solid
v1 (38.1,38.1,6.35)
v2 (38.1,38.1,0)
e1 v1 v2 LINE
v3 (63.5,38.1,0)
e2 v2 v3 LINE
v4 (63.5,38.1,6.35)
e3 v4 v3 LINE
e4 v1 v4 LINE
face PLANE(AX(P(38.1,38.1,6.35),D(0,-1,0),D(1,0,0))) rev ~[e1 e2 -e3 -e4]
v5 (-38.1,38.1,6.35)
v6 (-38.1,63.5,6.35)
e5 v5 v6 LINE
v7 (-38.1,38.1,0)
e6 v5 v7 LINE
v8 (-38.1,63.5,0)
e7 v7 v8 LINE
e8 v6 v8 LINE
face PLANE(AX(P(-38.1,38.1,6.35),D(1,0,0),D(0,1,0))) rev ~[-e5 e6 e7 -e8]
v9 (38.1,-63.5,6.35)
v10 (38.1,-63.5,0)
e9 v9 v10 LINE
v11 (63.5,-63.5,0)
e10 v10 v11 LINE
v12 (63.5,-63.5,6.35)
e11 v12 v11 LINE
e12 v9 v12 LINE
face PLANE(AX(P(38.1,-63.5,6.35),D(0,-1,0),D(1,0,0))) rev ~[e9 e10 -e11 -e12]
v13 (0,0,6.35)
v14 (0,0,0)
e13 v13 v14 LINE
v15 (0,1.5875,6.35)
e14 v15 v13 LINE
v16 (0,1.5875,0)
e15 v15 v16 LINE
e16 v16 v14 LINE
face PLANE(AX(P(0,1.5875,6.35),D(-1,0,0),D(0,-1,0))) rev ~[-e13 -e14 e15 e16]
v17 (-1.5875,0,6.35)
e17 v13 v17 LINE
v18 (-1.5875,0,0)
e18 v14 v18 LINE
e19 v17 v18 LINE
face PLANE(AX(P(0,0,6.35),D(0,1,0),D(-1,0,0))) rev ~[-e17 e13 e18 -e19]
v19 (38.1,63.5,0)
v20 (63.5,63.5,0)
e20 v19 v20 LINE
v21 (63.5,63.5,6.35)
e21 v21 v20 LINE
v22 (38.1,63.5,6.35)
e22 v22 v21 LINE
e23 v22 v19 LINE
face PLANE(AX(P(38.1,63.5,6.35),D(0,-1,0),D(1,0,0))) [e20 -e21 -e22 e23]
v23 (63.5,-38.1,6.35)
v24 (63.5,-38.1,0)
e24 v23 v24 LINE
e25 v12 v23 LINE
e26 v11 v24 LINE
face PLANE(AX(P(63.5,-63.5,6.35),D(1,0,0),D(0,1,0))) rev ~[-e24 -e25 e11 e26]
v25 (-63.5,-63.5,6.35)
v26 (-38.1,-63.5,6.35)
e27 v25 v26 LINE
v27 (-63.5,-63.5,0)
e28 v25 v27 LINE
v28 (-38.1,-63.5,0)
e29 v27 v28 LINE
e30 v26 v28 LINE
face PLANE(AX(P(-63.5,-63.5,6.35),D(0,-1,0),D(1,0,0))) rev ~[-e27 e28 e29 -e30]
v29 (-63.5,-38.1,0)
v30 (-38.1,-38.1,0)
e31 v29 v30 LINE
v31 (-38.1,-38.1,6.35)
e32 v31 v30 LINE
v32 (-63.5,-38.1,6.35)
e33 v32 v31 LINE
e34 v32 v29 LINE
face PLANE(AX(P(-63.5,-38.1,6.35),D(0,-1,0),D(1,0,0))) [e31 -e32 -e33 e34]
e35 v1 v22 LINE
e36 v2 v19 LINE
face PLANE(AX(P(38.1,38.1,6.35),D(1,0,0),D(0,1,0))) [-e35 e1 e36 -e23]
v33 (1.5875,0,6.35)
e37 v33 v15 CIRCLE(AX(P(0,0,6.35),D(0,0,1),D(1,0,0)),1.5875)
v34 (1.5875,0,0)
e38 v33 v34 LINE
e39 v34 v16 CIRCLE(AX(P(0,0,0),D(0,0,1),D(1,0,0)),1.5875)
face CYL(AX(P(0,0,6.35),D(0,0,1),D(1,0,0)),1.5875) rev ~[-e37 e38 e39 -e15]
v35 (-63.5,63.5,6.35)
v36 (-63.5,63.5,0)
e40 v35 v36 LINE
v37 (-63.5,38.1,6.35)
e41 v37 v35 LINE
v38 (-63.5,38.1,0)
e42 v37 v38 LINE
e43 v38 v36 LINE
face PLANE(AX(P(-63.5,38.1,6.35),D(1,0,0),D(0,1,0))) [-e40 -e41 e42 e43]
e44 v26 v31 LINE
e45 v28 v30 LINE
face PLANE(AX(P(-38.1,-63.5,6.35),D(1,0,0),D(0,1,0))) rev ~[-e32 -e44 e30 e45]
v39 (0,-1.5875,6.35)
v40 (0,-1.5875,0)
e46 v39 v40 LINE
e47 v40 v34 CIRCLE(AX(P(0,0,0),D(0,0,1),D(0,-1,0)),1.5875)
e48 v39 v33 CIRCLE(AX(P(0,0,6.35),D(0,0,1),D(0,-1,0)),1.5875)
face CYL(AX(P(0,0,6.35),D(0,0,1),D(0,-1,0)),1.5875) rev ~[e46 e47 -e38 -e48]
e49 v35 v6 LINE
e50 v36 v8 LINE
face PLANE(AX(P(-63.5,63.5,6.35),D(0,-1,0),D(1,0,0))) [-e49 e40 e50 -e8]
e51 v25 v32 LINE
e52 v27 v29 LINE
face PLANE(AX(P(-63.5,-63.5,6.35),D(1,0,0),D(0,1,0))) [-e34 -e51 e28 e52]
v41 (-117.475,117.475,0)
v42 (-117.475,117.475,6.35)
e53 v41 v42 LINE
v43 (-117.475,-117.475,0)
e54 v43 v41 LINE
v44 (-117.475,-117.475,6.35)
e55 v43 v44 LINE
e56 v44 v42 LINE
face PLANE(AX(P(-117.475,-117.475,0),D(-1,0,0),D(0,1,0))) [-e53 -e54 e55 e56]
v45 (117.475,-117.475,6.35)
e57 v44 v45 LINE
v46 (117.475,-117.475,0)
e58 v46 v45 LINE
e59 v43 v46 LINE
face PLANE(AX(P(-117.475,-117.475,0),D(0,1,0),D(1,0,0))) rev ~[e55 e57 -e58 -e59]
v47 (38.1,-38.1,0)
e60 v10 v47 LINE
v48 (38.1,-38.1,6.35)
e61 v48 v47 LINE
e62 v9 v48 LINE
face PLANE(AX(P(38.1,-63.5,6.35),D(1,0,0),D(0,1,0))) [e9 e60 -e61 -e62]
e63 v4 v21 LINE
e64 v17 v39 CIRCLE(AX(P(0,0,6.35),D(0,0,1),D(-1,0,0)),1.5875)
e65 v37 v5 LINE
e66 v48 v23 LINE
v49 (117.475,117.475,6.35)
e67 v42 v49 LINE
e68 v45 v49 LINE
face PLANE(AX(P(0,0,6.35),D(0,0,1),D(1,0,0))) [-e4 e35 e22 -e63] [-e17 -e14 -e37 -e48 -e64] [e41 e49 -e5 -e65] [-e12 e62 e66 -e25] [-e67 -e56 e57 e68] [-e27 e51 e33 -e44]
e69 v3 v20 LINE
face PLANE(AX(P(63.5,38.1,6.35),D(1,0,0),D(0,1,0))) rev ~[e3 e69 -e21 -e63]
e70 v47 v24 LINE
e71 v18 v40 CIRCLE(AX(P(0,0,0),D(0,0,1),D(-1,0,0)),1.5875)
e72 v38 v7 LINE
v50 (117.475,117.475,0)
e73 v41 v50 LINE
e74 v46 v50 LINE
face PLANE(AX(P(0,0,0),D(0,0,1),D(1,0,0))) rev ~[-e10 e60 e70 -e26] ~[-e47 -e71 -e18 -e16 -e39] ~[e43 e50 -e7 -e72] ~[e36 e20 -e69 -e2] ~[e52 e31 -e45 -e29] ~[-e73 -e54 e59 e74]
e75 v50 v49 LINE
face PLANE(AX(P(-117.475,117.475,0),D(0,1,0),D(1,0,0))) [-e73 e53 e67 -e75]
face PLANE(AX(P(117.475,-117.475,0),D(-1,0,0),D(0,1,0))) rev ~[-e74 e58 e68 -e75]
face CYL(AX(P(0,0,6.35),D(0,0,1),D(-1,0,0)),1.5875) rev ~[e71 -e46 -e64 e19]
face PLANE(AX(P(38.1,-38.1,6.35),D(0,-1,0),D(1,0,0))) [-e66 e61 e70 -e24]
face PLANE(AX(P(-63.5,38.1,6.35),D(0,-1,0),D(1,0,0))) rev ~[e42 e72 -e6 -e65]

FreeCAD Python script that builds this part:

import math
import FreeCAD as App
import Part
import Sketcher

V = App.Vector
Q = App.Units.Quantity

doc = App.newDocument("Part")
params = doc.addObject("Spreadsheet::Sheet", "Params")
for row, (alias, value) in enumerate([
    ("sketch1_width", "9.25 in"),
    ("pad1_length", "0.25 in"),
    ("sketch2_width", "1 in"),
    ("sketch2_radius", "0.0625 in"),
    ("pocket1_length", "1 in"),
], start=1):
    params.set(f"A{row}", alias)
    params.set(f"B{row}", "=" + value)
    params.setAlias(f"B{row}", alias)

body = doc.addObject("PartDesign::Body", "Body")

# Sketch on XY plane
sketch1 = body.newObject("Sketcher::SketchObject", "Sketch")
sketch1.AttachmentSupport = (doc.getObject("XY_Plane"), [""])
sketch1.MapMode = "FlatFace"
sketch1.addGeometry(Part.LineSegment(V(-117, 117, 0), V(-117, -117, 0)), False)
sketch1.addGeometry(Part.LineSegment(V(-117, -117, 0), V(117, -117, 0)), False)
sketch1.addGeometry(Part.LineSegment(V(117, -117, 0), V(117, 117, 0)), False)
sketch1.addGeometry(Part.LineSegment(V(117, 117, 0), V(-117, 117, 0)), False)
sketch1.addConstraint(Sketcher.Constraint("Coincident", 0, 2, 1, 1))
sketch1.addConstraint(Sketcher.Constraint("Coincident", 1, 2, 2, 1))
sketch1.addConstraint(Sketcher.Constraint("Coincident", 2, 2, 3, 1))
sketch1.addConstraint(Sketcher.Constraint("Coincident", 3, 2, 0, 1))
sketch1.addConstraint(Sketcher.Constraint("Vertical", 0))
sketch1.addConstraint(Sketcher.Constraint("Horizontal", 1))
sketch1.addConstraint(Sketcher.Constraint("Vertical", 2))
sketch1.addConstraint(Sketcher.Constraint("Horizontal", 3))
sketch1.addConstraint(Sketcher.Constraint("Symmetric", 0, 2, 2, 2, -1, 1))
sketch1.addConstraint(Sketcher.Constraint("Equal", 3, 0))
sketch1.addConstraint(Sketcher.Constraint("DistanceX", 1, 1, 1, 2, Q("9.25 in")))
sketch1.setExpression("Constraints[10]", "Params.sketch1_width")
pad1 = body.newObject("PartDesign::Pad", "Pad")
pad1.Profile = sketch1
pad1.setExpression("Length", "Params.pad1_length")

# Sketch on XY plane
sketch2 = body.newObject("Sketcher::SketchObject", "Sketch001")
sketch2.AttachmentSupport = (doc.getObject("XY_Plane"), [""])
sketch2.MapMode = "FlatFace"
sketch2.AttachmentOffset = App.Placement(V(0, 0, 0.25 * 25.4), App.Rotation())
sketch2.addGeometry(Part.LineSegment(V(-63.5, 63.5, 0), V(-63.5, 38.1, 0)), False)
sketch2.addGeometry(Part.LineSegment(V(-63.5, 38.1, 0), V(-38.1, 38.1, 0)), False)
sketch2.addGeometry(Part.LineSegment(V(-38.1, 38.1, 0), V(-38.1, 63.5, 0)), False)
sketch2.addGeometry(Part.LineSegment(V(-38.1, 63.5, 0), V(-63.5, 63.5, 0)), False)
sketch2.addGeometry(Part.LineSegment(V(38.1, 63.5, 0), V(38.1, 38.1, 0)), False)
sketch2.addGeometry(Part.LineSegment(V(38.1, 38.1, 0), V(63.5, 38.1, 0)), False)
sketch2.addGeometry(Part.LineSegment(V(63.5, 38.1, 0), V(63.5, 63.5, 0)), False)
sketch2.addGeometry(Part.LineSegment(V(63.5, 63.5, 0), V(38.1, 63.5, 0)), False)
sketch2.addGeometry(Part.LineSegment(V(38.1, -38.1, 0), V(38.1, -63.5, 0)), False)
sketch2.addGeometry(Part.LineSegment(V(38.1, -63.5, 0), V(63.5, -63.5, 0)), False)
sketch2.addGeometry(Part.LineSegment(V(63.5, -63.5, 0), V(63.5, -38.1, 0)), False)
sketch2.addGeometry(Part.LineSegment(V(63.5, -38.1, 0), V(38.1, -38.1, 0)), False)
sketch2.addGeometry(Part.LineSegment(V(-63.5, -38.1, 0), V(-63.5, -63.5, 0)), False)
sketch2.addGeometry(Part.LineSegment(V(-63.5, -63.5, 0), V(-38.1, -63.5, 0)), False)
sketch2.addGeometry(Part.LineSegment(V(-38.1, -63.5, 0), V(-38.1, -38.1, 0)), False)
sketch2.addGeometry(Part.LineSegment(V(-38.1, -38.1, 0), V(-63.5, -38.1, 0)), False)
sketch2.addGeometry(Part.ArcOfCircle(Part.Circle(V(0, 0, 0), V(0, 0, 1), 1.6), math.radians(0), math.radians(90)), False)
sketch2.addGeometry(Part.LineSegment(V(0, 1.6, 0), V(0, 0, 0)), False)
sketch2.addGeometry(Part.LineSegment(V(0, 0, 0), V(-1.6, 0, 0)), False)
sketch2.addGeometry(Part.ArcOfCircle(Part.Circle(V(0, 0, 0), V(0, 0, 1), 1.6), math.radians(180), math.radians(270)), False)
sketch2.addGeometry(Part.ArcOfCircle(Part.Circle(V(0, 0, 0), V(0, 0, 1), 1.6), math.radians(-90), math.radians(0)), False)
sketch2.addConstraint(Sketcher.Constraint("Coincident", 0, 2, 1, 1))
sketch2.addConstraint(Sketcher.Constraint("Coincident", 1, 2, 2, 1))
sketch2.addConstraint(Sketcher.Constraint("Coincident", 2, 2, 3, 1))
sketch2.addConstraint(Sketcher.Constraint("Coincident", 3, 2, 0, 1))
sketch2.addConstraint(Sketcher.Constraint("Coincident", 4, 2, 5, 1))
sketch2.addConstraint(Sketcher.Constraint("Coincident", 5, 2, 6, 1))
sketch2.addConstraint(Sketcher.Constraint("Coincident", 6, 2, 7, 1))
sketch2.addConstraint(Sketcher.Constraint("Coincident", 7, 2, 4, 1))
sketch2.addConstraint(Sketcher.Constraint("Coincident", 8, 2, 9, 1))
sketch2.addConstraint(Sketcher.Constraint("Coincident", 9, 2, 10, 1))
sketch2.addConstraint(Sketcher.Constraint("Coincident", 10, 2, 11, 1))
sketch2.addConstraint(Sketcher.Constraint("Coincident", 11, 2, 8, 1))
sketch2.addConstraint(Sketcher.Constraint("Coincident", 12, 2, 13, 1))
sketch2.addConstraint(Sketcher.Constraint("Coincident", 13, 2, 14, 1))
sketch2.addConstraint(Sketcher.Constraint("Coincident", 14, 2, 15, 1))
sketch2.addConstraint(Sketcher.Constraint("Coincident", 15, 2, 12, 1))
sketch2.addConstraint(Sketcher.Constraint("Coincident", 16, 2, 17, 1))
sketch2.addConstraint(Sketcher.Constraint("Coincident", 17, 2, 18, 1))
sketch2.addConstraint(Sketcher.Constraint("Coincident", 18, 2, 19, 1))
sketch2.addConstraint(Sketcher.Constraint("Tangent", 19, 2, 20, 1))
sketch2.addConstraint(Sketcher.Constraint("Tangent", 20, 2, 16, 1))
sketch2.addConstraint(Sketcher.Constraint("Vertical", 0))
sketch2.addConstraint(Sketcher.Constraint("Horizontal", 1))
sketch2.addConstraint(Sketcher.Constraint("Vertical", 2))
sketch2.addConstraint(Sketcher.Constraint("Horizontal", 3))
sketch2.addConstraint(Sketcher.Constraint("Vertical", 4))
sketch2.addConstraint(Sketcher.Constraint("Horizontal", 5))
sketch2.addConstraint(Sketcher.Constraint("Vertical", 6))
sketch2.addConstraint(Sketcher.Constraint("Horizontal", 7))
sketch2.addConstraint(Sketcher.Constraint("Vertical", 8))
sketch2.addConstraint(Sketcher.Constraint("Horizontal", 9))
sketch2.addConstraint(Sketcher.Constraint("Vertical", 10))
sketch2.addConstraint(Sketcher.Constraint("Horizontal", 11))
sketch2.addConstraint(Sketcher.Constraint("Vertical", 12))
sketch2.addConstraint(Sketcher.Constraint("Horizontal", 13))
sketch2.addConstraint(Sketcher.Constraint("Vertical", 14))
sketch2.addConstraint(Sketcher.Constraint("Horizontal", 15))
sketch2.addConstraint(Sketcher.Constraint("Vertical", 17))
sketch2.addConstraint(Sketcher.Constraint("Horizontal", 18))
sketch2.addConstraint(Sketcher.Constraint("Coincident", 16, 3, -1, 1))
sketch2.addConstraint(Sketcher.Constraint("Coincident", 19, 3, -1, 1))
sketch2.addConstraint(Sketcher.Constraint("Coincident", 17, 2, -1, 1))
sketch2.addConstraint(Sketcher.Constraint("Symmetric", 2, 2, 8, 2, -1, 1))
sketch2.addConstraint(Sketcher.Constraint("Symmetric", 0, 2, 10, 2, -1, 1))
sketch2.addConstraint(Sketcher.Constraint("Symmetric", 6, 2, 12, 2, -1, 1))
sketch2.addConstraint(Sketcher.Constraint("Symmetric", 4, 2, 14, 2, -1, 1))
sketch2.addConstraint(Sketcher.Constraint("Symmetric", 1, 2, 4, 2, -2))
sketch2.addConstraint(Sketcher.Constraint("Symmetric", 3, 2, 6, 2, -2))
sketch2.addConstraint(Sketcher.Constraint("PointOnObject", 19, 2, -2))
sketch2.addConstraint(Sketcher.Constraint("PointOnObject", 20, 2, -1))
sketch2.addConstraint(Sketcher.Constraint("Equal", 15, 0))
sketch2.addConstraint(Sketcher.Constraint("DistanceX", 1, 1, 1, 2, Q("1 in")))
sketch2.addConstraint(Sketcher.Constraint("Radius", 16, Q("0.0625 in")))
sketch2.addConstraint(Sketcher.Constraint("DistanceX", 1, 2, 4, 2, Q("3 in")))
sketch2.addConstraint(Sketcher.Constraint("DistanceY", 8, 2, 4, 2, Q("4 in")))
sketch2.setExpression("Constraints[51]", "Params.sketch2_width")
sketch2.setExpression("Constraints[52]", "Params.sketch2_radius")
pocket1 = body.newObject("PartDesign::Pocket", "Pocket")
pocket1.Profile = sketch2
pocket1.setExpression("Length", "Params.pocket1_length")

doc.recompute()
